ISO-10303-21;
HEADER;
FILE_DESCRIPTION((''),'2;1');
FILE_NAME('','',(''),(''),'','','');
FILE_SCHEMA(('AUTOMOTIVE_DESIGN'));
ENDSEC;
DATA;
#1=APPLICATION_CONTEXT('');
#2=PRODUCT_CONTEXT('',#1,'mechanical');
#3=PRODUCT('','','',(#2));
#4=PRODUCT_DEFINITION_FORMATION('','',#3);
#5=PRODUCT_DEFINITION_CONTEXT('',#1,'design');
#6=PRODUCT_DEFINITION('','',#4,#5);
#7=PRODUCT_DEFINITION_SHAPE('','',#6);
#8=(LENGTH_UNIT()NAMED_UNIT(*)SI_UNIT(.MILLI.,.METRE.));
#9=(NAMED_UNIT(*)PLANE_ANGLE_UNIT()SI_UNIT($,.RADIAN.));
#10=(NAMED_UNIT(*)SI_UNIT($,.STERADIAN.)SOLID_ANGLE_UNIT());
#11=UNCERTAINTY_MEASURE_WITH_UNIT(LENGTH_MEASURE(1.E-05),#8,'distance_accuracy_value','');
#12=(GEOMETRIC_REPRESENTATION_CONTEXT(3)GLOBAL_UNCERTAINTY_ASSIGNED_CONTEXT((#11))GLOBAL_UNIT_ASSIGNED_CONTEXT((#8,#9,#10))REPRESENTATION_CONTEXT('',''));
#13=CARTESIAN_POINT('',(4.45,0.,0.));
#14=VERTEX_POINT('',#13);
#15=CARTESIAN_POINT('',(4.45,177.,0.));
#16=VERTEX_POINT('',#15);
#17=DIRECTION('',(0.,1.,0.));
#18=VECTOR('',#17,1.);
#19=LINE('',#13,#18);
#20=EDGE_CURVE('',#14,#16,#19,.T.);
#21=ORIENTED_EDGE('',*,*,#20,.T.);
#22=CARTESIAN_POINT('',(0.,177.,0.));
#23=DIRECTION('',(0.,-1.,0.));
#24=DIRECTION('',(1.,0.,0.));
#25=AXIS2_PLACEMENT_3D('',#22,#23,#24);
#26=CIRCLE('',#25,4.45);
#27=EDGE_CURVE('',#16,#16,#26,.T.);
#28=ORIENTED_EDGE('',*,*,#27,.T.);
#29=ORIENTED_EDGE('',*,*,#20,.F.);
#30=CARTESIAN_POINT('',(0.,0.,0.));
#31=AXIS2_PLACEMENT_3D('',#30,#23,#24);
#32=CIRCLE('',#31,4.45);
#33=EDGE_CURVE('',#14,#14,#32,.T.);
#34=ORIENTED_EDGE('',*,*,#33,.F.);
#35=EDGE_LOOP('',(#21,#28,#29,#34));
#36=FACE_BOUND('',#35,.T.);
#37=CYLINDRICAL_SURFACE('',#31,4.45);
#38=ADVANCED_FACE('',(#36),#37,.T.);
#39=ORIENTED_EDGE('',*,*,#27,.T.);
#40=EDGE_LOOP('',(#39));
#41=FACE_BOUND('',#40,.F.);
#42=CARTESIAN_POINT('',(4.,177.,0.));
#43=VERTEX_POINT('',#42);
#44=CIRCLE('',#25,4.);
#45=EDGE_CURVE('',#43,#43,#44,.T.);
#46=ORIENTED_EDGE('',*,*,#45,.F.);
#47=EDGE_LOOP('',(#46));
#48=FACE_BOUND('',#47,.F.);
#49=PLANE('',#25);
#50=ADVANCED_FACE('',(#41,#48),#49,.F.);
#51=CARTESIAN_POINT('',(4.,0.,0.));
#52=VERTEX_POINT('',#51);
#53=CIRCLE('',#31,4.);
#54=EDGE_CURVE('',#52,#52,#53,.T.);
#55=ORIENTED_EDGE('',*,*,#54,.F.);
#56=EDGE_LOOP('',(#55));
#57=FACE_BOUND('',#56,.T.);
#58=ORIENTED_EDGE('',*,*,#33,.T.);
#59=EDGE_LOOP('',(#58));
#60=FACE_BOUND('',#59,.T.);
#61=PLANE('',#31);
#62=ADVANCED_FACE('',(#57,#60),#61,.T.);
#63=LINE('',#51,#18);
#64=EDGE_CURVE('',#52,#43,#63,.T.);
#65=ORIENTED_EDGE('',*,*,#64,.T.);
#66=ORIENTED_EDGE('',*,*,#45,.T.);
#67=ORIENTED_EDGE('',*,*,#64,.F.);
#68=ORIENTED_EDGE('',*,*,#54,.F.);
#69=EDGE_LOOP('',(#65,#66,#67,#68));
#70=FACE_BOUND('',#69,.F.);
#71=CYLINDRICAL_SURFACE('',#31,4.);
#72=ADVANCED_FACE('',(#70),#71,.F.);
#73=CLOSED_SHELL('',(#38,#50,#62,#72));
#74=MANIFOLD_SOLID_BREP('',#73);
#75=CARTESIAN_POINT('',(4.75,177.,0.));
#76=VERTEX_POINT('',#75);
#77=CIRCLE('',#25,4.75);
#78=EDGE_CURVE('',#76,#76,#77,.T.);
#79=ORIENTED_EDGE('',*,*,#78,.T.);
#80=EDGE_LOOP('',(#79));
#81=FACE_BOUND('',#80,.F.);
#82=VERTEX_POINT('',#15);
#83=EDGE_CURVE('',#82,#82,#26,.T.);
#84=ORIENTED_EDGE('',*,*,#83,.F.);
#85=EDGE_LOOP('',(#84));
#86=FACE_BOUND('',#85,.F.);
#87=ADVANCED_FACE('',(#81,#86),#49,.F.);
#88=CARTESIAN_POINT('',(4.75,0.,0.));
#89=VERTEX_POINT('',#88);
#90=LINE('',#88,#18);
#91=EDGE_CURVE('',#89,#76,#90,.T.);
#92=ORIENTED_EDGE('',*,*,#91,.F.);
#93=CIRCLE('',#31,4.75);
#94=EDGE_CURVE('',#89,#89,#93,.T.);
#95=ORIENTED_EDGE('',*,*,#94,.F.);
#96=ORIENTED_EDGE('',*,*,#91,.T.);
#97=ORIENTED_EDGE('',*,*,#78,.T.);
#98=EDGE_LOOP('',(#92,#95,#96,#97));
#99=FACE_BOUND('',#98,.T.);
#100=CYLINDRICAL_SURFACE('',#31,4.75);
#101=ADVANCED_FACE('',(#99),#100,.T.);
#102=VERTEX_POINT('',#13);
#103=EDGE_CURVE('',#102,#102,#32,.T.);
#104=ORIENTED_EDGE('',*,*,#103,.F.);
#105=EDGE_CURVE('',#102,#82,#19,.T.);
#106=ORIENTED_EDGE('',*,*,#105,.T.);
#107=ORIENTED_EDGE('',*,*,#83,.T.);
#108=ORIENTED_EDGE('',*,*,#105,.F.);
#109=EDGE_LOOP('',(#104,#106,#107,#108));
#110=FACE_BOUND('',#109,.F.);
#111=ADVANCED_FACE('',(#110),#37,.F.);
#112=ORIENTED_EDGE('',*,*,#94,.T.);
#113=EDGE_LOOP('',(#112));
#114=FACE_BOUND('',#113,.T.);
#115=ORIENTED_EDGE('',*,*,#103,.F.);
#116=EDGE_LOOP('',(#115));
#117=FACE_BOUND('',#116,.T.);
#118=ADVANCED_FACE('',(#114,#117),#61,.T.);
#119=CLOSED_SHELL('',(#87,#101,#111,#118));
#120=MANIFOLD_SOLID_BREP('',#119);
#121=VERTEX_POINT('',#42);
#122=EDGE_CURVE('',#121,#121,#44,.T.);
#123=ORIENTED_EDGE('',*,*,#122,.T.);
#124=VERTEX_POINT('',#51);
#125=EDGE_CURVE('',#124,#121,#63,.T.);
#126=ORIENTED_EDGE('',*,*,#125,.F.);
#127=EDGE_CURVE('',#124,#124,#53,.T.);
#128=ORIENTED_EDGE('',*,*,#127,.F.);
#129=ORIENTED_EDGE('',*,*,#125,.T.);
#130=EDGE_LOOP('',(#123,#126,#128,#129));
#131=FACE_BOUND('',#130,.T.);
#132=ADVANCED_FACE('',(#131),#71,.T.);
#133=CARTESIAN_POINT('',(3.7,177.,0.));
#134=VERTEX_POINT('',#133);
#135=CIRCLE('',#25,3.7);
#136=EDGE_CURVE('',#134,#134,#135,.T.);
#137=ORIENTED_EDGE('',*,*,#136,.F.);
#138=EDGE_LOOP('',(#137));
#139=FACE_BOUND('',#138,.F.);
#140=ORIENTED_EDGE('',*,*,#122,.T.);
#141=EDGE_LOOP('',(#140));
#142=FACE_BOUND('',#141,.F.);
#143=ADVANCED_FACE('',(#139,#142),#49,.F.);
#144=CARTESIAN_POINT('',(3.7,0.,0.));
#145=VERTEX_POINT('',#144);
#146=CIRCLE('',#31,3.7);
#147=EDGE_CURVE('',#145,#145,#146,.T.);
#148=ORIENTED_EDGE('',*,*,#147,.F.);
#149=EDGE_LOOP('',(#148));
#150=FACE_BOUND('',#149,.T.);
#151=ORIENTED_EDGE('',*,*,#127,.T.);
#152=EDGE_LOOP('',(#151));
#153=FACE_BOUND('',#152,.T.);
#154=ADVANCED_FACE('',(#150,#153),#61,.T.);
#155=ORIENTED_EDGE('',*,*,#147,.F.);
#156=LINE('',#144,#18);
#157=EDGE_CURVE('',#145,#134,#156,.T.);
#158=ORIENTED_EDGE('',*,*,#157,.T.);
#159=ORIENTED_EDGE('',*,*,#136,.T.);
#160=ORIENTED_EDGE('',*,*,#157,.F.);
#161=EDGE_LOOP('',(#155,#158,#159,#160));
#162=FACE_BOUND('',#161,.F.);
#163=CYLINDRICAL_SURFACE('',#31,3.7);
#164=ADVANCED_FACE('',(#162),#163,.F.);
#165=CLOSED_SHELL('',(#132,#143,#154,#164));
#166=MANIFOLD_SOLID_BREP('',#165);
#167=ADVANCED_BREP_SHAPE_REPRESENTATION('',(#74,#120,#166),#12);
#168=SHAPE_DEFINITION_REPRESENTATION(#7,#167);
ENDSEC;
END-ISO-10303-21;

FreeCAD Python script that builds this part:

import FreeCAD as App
import Part
import Sketcher

V = App.Vector
Q = App.Units.Quantity

doc = App.newDocument("Part")
body = doc.addObject("PartDesign::Body", "Body")

sketch1 = body.newObject("Sketcher::SketchObject", "Sketch")
sketch1.AttachmentSupport = (doc.getObject("XZ_Plane"), [""])
sketch1.MapMode = "FlatFace"
sketch1.addGeometry(Part.Circle(V(0, 0, 0), V(0, 0, 1), 4.8), False)
sketch1.addGeometry(Part.Circle(V(0, 0, 0), V(0, 0, 1), 4.5), False)
sketch1.addConstraint(Sketcher.Constraint("Coincident", 0, 3, -1, 1))
sketch1.addConstraint(Sketcher.Constraint("Coincident", 1, 3, -1, 1))
sketch1.addConstraint(Sketcher.Constraint("Diameter", 0, Q("9.5 mm")))
sketch1.addConstraint(Sketcher.Constraint("Diameter", 1, Q("8.9 mm")))
pad1 = body.newObject("PartDesign::Pad", "Pad")
pad1.Profile = sketch1
pad1.Length = 177
pad1.Reversed = True
body2 = doc.addObject("PartDesign::Body", "Body001")

sketch2 = body2.newObject("Sketcher::SketchObject", "Sketch001")
sketch2.AttachmentSupport = (doc.getObject("XZ_Plane001"), [""])
sketch2.MapMode = "FlatFace"
sketch2.addGeometry(Part.Circle(V(0, 0, 0), V(0, 0, 1), 4), False)
sketch2.addGeometry(Part.Circle(V(0, 0, 0), V(0, 0, 1), 3.7), False)
sketch2.addConstraint(Sketcher.Constraint("Coincident", 0, 3, -1, 1))
sketch2.addConstraint(Sketcher.Constraint("Coincident", 1, 3, -1, 1))
sketch2.addConstraint(Sketcher.Constraint("Diameter", 0, Q("8 mm")))
sketch2.addConstraint(Sketcher.Constraint("Diameter", 1, Q("7.4 mm")))
pad2 = body2.newObject("PartDesign::Pad", "Pad001")
pad2.Profile = sketch2
pad2.Length = 177
pad2.Reversed = True
body3 = doc.addObject("PartDesign::Body", "Body002")

sketch3 = body3.newObject("Sketcher::SketchObject", "Sketch002")
sketch3.AttachmentSupport = (doc.getObject("XZ_Plane002"), [""])
sketch3.MapMode = "FlatFace"
sketch3.addGeometry(Part.Circle(V(0, 0, 0), V(0, 0, 1), 4.5), False)
sketch3.addGeometry(Part.Circle(V(0, 0, 0), V(0, 0, 1), 4), False)
sketch3.addConstraint(Sketcher.Constraint("Coincident", 0, 3, -1, 1))
sketch3.addConstraint(Sketcher.Constraint("Coincident", 1, 3, -1, 1))
sketch3.addConstraint(Sketcher.Constraint("Diameter", 1, Q("8 mm")))
sketch3.addConstraint(Sketcher.Constraint("Diameter", 0, Q("8.9 mm")))
pad3 = body3.newObject("PartDesign::Pad", "Pad002")
pad3.Profile = sketch3
pad3.Length = 177
pad3.Reversed = True

doc.recompute()
